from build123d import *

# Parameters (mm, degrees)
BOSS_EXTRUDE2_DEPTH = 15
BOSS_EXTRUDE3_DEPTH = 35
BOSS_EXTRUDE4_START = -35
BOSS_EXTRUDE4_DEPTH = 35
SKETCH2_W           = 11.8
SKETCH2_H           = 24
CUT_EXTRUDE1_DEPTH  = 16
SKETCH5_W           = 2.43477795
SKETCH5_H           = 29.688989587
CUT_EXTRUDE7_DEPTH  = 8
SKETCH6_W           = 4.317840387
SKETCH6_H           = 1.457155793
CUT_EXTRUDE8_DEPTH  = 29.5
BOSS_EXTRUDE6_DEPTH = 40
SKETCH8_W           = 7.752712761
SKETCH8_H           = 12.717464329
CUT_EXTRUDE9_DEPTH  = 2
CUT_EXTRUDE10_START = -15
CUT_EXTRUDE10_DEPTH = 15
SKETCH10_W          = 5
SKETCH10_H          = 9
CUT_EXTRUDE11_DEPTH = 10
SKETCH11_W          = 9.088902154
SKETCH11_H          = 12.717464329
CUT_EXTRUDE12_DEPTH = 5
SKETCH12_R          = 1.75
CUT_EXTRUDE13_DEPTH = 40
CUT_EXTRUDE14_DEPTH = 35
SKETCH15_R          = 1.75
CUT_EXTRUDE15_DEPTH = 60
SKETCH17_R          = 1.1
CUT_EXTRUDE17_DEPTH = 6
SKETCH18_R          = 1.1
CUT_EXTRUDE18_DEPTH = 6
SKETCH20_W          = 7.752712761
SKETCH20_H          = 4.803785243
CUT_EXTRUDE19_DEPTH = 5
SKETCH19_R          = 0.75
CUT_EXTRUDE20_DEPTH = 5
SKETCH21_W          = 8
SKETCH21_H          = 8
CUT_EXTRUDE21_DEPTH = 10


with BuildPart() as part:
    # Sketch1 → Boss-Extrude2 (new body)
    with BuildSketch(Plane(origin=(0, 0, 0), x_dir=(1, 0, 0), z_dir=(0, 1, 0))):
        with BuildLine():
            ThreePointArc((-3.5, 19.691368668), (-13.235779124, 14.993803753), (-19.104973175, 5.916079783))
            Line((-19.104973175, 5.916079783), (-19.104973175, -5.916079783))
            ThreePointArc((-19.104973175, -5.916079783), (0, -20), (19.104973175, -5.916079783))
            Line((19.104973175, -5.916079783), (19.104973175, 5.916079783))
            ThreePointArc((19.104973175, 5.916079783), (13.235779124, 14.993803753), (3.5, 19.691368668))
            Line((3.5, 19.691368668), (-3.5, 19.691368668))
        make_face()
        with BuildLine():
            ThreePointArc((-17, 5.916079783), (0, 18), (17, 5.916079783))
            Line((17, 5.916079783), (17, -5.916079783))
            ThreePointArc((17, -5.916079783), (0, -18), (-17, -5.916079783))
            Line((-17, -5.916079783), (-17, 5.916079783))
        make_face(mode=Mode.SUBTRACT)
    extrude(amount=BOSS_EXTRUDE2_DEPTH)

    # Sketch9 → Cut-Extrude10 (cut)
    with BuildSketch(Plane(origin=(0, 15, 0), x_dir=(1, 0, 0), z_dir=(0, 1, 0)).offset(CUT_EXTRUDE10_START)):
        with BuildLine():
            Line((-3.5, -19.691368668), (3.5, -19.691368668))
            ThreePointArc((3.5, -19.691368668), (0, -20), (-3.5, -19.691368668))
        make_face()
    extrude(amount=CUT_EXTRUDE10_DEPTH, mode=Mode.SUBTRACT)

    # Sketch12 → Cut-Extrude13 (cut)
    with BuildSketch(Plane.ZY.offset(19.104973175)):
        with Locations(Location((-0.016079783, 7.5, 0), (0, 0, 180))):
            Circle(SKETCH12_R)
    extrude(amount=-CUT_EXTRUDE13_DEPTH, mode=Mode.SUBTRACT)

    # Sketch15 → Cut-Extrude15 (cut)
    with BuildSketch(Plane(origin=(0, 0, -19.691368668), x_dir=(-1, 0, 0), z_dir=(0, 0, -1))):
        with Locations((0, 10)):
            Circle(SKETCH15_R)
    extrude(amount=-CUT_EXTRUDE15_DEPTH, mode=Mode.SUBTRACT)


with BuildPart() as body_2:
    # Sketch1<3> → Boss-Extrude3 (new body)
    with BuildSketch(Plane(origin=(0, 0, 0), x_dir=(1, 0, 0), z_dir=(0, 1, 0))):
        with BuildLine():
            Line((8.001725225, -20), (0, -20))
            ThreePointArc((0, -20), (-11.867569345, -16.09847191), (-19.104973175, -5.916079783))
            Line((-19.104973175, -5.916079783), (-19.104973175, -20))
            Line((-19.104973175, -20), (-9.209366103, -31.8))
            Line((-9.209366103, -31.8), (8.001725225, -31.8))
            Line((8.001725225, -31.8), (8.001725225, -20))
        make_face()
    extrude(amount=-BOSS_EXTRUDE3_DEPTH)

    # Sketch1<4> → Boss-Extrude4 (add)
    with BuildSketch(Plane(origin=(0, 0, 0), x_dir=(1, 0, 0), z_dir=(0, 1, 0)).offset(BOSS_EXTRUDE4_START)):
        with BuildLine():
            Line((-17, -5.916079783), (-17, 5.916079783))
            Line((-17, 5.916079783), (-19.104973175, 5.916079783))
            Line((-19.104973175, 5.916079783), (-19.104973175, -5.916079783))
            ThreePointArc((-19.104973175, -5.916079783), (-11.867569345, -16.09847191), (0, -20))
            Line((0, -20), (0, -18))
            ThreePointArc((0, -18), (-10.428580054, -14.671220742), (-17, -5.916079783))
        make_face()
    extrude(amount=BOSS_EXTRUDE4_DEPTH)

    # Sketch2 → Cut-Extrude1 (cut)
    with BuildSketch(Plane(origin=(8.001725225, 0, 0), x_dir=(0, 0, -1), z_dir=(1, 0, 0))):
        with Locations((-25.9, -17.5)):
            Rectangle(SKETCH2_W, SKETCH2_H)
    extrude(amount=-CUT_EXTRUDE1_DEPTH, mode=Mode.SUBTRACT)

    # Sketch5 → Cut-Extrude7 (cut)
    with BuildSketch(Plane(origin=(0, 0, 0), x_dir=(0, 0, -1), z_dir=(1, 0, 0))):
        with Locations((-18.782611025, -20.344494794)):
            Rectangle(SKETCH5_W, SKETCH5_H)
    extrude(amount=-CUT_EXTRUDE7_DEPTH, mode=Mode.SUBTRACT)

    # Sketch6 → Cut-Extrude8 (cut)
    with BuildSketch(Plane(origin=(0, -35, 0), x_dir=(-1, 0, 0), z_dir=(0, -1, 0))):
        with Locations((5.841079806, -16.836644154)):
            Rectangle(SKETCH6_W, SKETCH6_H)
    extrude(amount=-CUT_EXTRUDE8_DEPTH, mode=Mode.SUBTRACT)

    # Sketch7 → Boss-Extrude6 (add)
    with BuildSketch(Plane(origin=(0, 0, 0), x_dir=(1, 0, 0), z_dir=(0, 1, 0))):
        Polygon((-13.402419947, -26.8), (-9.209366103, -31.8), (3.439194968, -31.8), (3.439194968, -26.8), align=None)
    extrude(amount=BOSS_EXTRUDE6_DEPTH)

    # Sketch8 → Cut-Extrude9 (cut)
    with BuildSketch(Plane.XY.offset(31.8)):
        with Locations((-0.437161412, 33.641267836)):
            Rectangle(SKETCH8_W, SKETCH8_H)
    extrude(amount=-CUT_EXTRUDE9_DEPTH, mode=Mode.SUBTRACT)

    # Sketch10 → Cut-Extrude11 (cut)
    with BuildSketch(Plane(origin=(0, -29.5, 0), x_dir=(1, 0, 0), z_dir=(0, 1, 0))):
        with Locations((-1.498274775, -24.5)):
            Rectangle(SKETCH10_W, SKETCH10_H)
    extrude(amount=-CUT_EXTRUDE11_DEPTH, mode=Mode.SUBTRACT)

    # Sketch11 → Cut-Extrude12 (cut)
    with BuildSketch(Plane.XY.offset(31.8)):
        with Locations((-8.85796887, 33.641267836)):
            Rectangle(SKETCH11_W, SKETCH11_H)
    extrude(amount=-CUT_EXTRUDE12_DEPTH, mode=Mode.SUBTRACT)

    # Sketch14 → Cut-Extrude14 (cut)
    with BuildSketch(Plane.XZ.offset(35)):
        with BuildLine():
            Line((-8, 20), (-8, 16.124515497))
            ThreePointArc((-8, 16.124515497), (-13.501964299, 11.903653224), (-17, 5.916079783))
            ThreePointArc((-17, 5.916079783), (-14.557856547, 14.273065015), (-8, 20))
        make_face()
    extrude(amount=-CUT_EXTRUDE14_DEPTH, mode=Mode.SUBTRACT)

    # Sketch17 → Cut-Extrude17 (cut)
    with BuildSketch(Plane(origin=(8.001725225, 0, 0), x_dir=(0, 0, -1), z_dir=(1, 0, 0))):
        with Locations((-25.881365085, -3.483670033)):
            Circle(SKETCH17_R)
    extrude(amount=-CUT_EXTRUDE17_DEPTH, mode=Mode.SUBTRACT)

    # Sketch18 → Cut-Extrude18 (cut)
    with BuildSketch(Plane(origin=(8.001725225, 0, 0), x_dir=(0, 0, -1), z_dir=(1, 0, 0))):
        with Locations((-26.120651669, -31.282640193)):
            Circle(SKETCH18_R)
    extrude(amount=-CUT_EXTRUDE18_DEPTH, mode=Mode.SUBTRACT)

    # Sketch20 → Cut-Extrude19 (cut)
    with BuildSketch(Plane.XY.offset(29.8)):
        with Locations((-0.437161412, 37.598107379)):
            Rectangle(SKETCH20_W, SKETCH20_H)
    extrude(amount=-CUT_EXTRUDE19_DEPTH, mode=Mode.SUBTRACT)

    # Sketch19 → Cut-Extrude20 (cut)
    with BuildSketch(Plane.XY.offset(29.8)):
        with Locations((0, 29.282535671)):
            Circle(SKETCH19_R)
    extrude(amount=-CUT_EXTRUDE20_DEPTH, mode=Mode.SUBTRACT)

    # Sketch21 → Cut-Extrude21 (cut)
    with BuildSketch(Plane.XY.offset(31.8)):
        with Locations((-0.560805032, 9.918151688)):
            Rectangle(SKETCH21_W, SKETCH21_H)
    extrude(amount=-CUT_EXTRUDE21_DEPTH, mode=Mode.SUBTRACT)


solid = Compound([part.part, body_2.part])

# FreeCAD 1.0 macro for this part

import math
import FreeCAD as App
import Part
import Sketcher
from FreeCAD import Vector


def add_polygon(sketch, points):
    """Adds a closed chain of lines whose ends are joined by coincident constraints."""
    first, n = sketch.GeometryCount, len(points)
    for a, b in zip(points, points[1:] + points[:1]):
        sketch.addGeometry(Part.LineSegment(App.Vector(*a, 0), App.Vector(*b, 0)), False)
    for i in range(n):
        sketch.addConstraint(Sketcher.Constraint("Coincident", first + i, 2, first + (i + 1) % n, 1))

doc = App.newDocument("Part")
body = doc.addObject("PartDesign::Body", "Body")

# Sketch on XZ plane
sketch1 = body.newObject("Sketcher::SketchObject", "Sketch")
sketch1.AttachmentSupport = (doc.getObject("XZ_Plane"), [""])
sketch1.MapMode = "FlatFace"
sketch1.addGeometry([
    Part.ArcOfCircle(Part.Circle(Vector(0, 0, 0), Vector(0, 0, 1), 20), math.radians(-162.794246), math.radians(-100.078658)),  # 0
    Part.LineSegment(Vector(-19.104973, -5.91608, 0), Vector(-19.104973, 5.91608, 0)),  # 1
    Part.ArcOfCircle(Part.Circle(Vector(0, 0, 0), Vector(0, 0, 1), 20), math.radians(17.205754), math.radians(162.794246)),  # 2
    Part.LineSegment(Vector(19.104973, 5.91608, 0), Vector(19.104973, -5.91608, 0)),  # 3
    Part.ArcOfCircle(Part.Circle(Vector(0, 0, 0), Vector(0, 0, 1), 20), math.radians(-79.921342), math.radians(-17.205754)),  # 4
    Part.LineSegment(Vector(3.5, -19.691369, 0), Vector(-3.5, -19.691369, 0)),  # 5
    Part.LineSegment(Vector(-17, 5.91608, 0), Vector(-17, -5.91608, 0)),  # 6
    Part.ArcOfCircle(Part.Circle(Vector(0, 0, 0), Vector(0, 0, 1), 18), math.radians(-160.811864), math.radians(-19.188136)),  # 7
    Part.LineSegment(Vector(17, -5.91608, 0), Vector(17, 5.91608, 0)),  # 8
    Part.ArcOfCircle(Part.Circle(Vector(0, 0, 0), Vector(0, 0, 1), 18), math.radians(19.188136), math.radians(160.811864)),  # 9
], False)
sketch1.addConstraint([
    Sketcher.Constraint("Coincident", 0, 1, 1, 1),
    Sketcher.Constraint("Coincident", 1, 2, 2, 2),
    Sketcher.Constraint("Coincident", 2, 1, 3, 1),
    Sketcher.Constraint("Coincident", 3, 2, 4, 2),
    Sketcher.Constraint("Coincident", 4, 1, 5, 1),
    Sketcher.Constraint("Coincident", 5, 2, 0, 2),
    Sketcher.Constraint("Coincident", 6, 2, 7, 1),
    Sketcher.Constraint("Coincident", 7, 2, 8, 1),
    Sketcher.Constraint("Coincident", 8, 2, 9, 1),
    Sketcher.Constraint("Coincident", 9, 2, 6, 1),
    Sketcher.Constraint("Vertical", 1),
    Sketcher.Constraint("Vertical", 3),
    Sketcher.Constraint("Horizontal", 5),
    Sketcher.Constraint("Vertical", 6),
    Sketcher.Constraint("Vertical", 8),
    Sketcher.Constraint("Coincident", 0, 3, -1, 1),
    Sketcher.Constraint("Coincident", 2, 3, -1, 1),
    Sketcher.Constraint("Coincident", 4, 3, -1, 1),
    Sketcher.Constraint("Coincident", 7, 3, -1, 1),
    Sketcher.Constraint("Coincident", 9, 3, -1, 1),
    Sketcher.Constraint("Equal", 0, 2),
    Sketcher.Constraint("Equal", 2, 4),
    Sketcher.Constraint("Equal", 7, 9),
    Sketcher.Constraint("Horizontal", 1, 2, 2, 1),
    Sketcher.Constraint("Horizontal", 3, 2, 6, 2),
    Sketcher.Constraint("Horizontal", 6, 2, 7, 2),
    Sketcher.Constraint("Radius", 0, 20.0),
    Sketcher.Constraint("Radius", 7, 18.0),
    Sketcher.Constraint("DistanceX", 5, 2, 5, 1, 7.0),
    Sketcher.Constraint("DistanceX", 6, 2, -1, 1, 17.0),
])
pad1 = body.newObject("PartDesign::Pad", "Pad")
pad1.Profile = sketch1
pad1.Length = 15
pad1.Reversed = True

# Sketch on XZ plane
sketch2 = body.newObject("Sketcher::SketchObject", "Sketch001")
sketch2.AttachmentSupport = (doc.getObject("XZ_Plane"), [""])
sketch2.MapMode = "FlatFace"
sketch2.addGeometry([
    Part.LineSegment(Vector(3.5, 19.691369, 0), Vector(-3.5, 19.691369, 0)),
    Part.ArcOfCircle(Part.Circle(Vector(0, 0, 0), Vector(0, 0, 1), 20), math.radians(79.921342), math.radians(100.078658)),
], False)
sketch2.addConstraint([
    Sketcher.Constraint("Coincident", 0, 1, 1, 1),
    Sketcher.Constraint("Coincident", 1, 2, 0, 2),
    Sketcher.Constraint("Horizontal", 0),
    Sketcher.Constraint("Coincident", 1, 3, -1, 1),
    Sketcher.Constraint("Radius", 1, 20.0),
    Sketcher.Constraint("DistanceX", 0, 2, 0, 1, 7.0),
])
pocket1 = body.newObject("PartDesign::Pocket", "Pocket")
pocket1.Profile = sketch2
pocket1.Length = 15

# Sketch on YZ plane
sketch3 = body.newObject("Sketcher::SketchObject", "Sketch002")
sketch3.AttachmentSupport = (doc.getObject("YZ_Plane"), [""])
sketch3.MapMode = "FlatFace"
sketch3.AttachmentOffset = App.Placement(Vector(0, 0, -19.104973), App.Rotation())
sketch3.addGeometry(Part.Circle(Vector(7.5, -0.01608, 0), Vector(0, 0, 1), 1.75), False)
sketch3.addConstraint([
    Sketcher.Constraint("Diameter", 0, 3.5),
    Sketcher.Constraint("DistanceX", -1, 1, 0, 3, 7.5),
    Sketcher.Constraint("DistanceY", 0, 3, -1, 1, 0.01608),
])
pocket2 = body.newObject("PartDesign::Pocket", "Pocket001")
pocket2.Profile = sketch3
pocket2.Length = 40
pocket2.Reversed = True

# Sketch on XY plane
sketch4 = body.newObject("Sketcher::SketchObject", "Sketch003")
sketch4.AttachmentSupport = (doc.getObject("XY_Plane"), [""])
sketch4.MapMode = "FlatFace"
sketch4.AttachmentOffset = App.Placement(Vector(0, 0, -19.691369), App.Rotation())
sketch4.addGeometry(Part.Circle(Vector(0, 10, 0), Vector(0, 0, 1), 1.75), False)
sketch4.addConstraint([
    Sketcher.Constraint("PointOnObject", 0, 3, -2),
    Sketcher.Constraint("Diameter", 0, 3.5),
    Sketcher.Constraint("DistanceY", -1, 1, 0, 3, 10.0),
])
pocket3 = body.newObject("PartDesign::Pocket", "Pocket002")
pocket3.Profile = sketch4
pocket3.Length = 60
pocket3.Reversed = True
body2 = doc.addObject("PartDesign::Body", "Body001")

# Sketch on XZ plane
sketch5 = body2.newObject("Sketcher::SketchObject", "Sketch004")
sketch5.AttachmentSupport = (doc.getObject("XZ_Plane001"), [""])
sketch5.MapMode = "FlatFace"
sketch5.addGeometry([
    Part.LineSegment(Vector(8.001725, 20, 0), Vector(0, 20, 0)),  # 0
    Part.ArcOfCircle(Part.Circle(Vector(0, 0, 0), Vector(0, 0, 1), 20), math.radians(90), math.radians(162.794246)),  # 1
    Part.LineSegment(Vector(-19.104973, 5.91608, 0), Vector(-19.104973, 20, 0)),  # 2
    Part.LineSegment(Vector(-19.104973, 20, 0), Vector(-9.209366, 31.8, 0)),  # 3
    Part.LineSegment(Vector(-9.209366, 31.8, 0), Vector(8.001725, 31.8, 0)),  # 4
    Part.LineSegment(Vector(8.001725, 31.8, 0), Vector(8.001725, 20, 0)),  # 5
], False)
sketch5.addConstraint([
    Sketcher.Constraint("Tangent", 0, 2, 1, 1),
    Sketcher.Constraint("Coincident", 1, 2, 2, 1),
    Sketcher.Constraint("Coincident", 2, 2, 3, 1),
    Sketcher.Constraint("Coincident", 3, 2, 4, 1),
    Sketcher.Constraint("Coincident", 4, 2, 5, 1),
    Sketcher.Constraint("Coincident", 5, 2, 0, 1),
    Sketcher.Constraint("Horizontal", 0),
    Sketcher.Constraint("Vertical", 2),
    Sketcher.Constraint("Horizontal", 4),
    Sketcher.Constraint("Vertical", 5),
    Sketcher.Constraint("Coincident", 1, 3, -1, 1),
    Sketcher.Constraint("Horizontal", 0, 2, 2, 2),
    Sketcher.Constraint("Radius", 1, 20.0),
    Sketcher.Constraint("DistanceY", 5, 2, 5, 1, 11.8),
    Sketcher.Constraint("Distance", 3, 15.400099),
    Sketcher.Constraint("DistanceX", 4, 1, 4, 2, 17.211091),
    Sketcher.Constraint("DistanceY", 2, 1, 2, 2, 14.08392),
])
pad2 = body2.newObject("PartDesign::Pad", "Pad001")
pad2.Profile = sketch5
pad2.Length = 35

# Sketch on XZ plane
sketch6 = body2.newObject("Sketcher::SketchObject", "Sketch005")
sketch6.AttachmentSupport = (doc.getObject("XZ_Plane001"), [""])
sketch6.MapMode = "FlatFace"
sketch6.AttachmentOffset = App.Placement(Vector(0, 0, 35), App.Rotation())
sketch6.addGeometry([
    Part.LineSegment(Vector(-17, 5.91608, 0), Vector(-17, -5.91608, 0)),  # 0
    Part.LineSegment(Vector(-17, -5.91608, 0), Vector(-19.104973, -5.91608, 0)),  # 1
    Part.LineSegment(Vector(-19.104973, -5.91608, 0), Vector(-19.104973, 5.91608, 0)),  # 2
    Part.ArcOfCircle(Part.Circle(Vector(0, 0, 0), Vector(0, 0, 1), 20), math.radians(90), math.radians(162.794246)),  # 3
    Part.LineSegment(Vector(0, 20, 0), Vector(0, 18, 0)),  # 4
    Part.ArcOfCircle(Part.Circle(Vector(0, 0, 0), Vector(0, 0, 1), 18), math.radians(90), math.radians(160.811864)),  # 5
], False)
sketch6.addConstraint([
    Sketcher.Constraint("Coincident", 0, 2, 1, 1),
    Sketcher.Constraint("Coincident", 1, 2, 2, 1),
    Sketcher.Constraint("Coincident", 2, 2, 3, 2),
    Sketcher.Constraint("Coincident", 3, 1, 4, 1),
    Sketcher.Constraint("Coincident", 4, 2, 5, 1),
    Sketcher.Constraint("Coincident", 5, 2, 0, 1),
    Sketcher.Constraint("Vertical", 0),
    Sketcher.Constraint("Horizontal", 1),
    Sketcher.Constraint("Vertical", 2),
    Sketcher.Constraint("Vertical", 4),
    Sketcher.Constraint("Coincident", 3, 3, -1, 1),
    Sketcher.Constraint("Coincident", 5, 3, -1, 1),
    Sketcher.Constraint("PointOnObject", 3, 1, -2),
    Sketcher.Constraint("Horizontal", 2, 2, 5, 2),
    Sketcher.Constraint("Radius", 3, 20.0),
    Sketcher.Constraint("Radius", 5, 18.0),
    Sketcher.Constraint("DistanceX", 0, 2, -1, 1, 17.0),
    Sketcher.Constraint("DistanceY", 0, 2, 0, 1, 11.83216),
])
pad3 = body2.newObject("PartDesign::Pad", "Pad002")
pad3.Profile = sketch6
pad3.Length = 35
pad3.Reversed = True

# Sketch on YZ plane
sketch7 = body2.newObject("Sketcher::SketchObject", "Sketch006")
sketch7.AttachmentSupport = (doc.getObject("YZ_Plane001"), [""])
sketch7.MapMode = "FlatFace"
sketch7.AttachmentOffset = App.Placement(Vector(0, 0, 8.001725), App.Rotation())
add_polygon(sketch7, [(-5.5, 31.8), (-29.5, 31.8), (-29.5, 20), (-5.5, 20)])  # lines 0-3
sketch7.addConstraint([
    Sketcher.Constraint("Horizontal", 0),
    Sketcher.Constraint("Vertical", 1),
    Sketcher.Constraint("Horizontal", 2),
    Sketcher.Constraint("Vertical", 3),
    Sketcher.Constraint("DistanceX", 0, 2, 0, 1, 24.0),
    Sketcher.Constraint("DistanceY", 1, 2, 1, 1, 11.8),
    Sketcher.Constraint("DistanceY", -1, 1, 1, 2, 20.0),
    Sketcher.Constraint("DistanceX", 0, 2, -1, 1, 29.5),
])
pocket4 = body2.newObject("PartDesign::Pocket", "Pocket003")
pocket4.Profile = sketch7
pocket4.Length = 16

# Sketch on YZ plane
sketch8 = body2.newObject("Sketcher::SketchObject", "Sketch007")
sketch8.AttachmentSupport = (doc.getObject("YZ_Plane001"), [""])
sketch8.MapMode = "FlatFace"
add_polygon(sketch8, [(-5.5, 20), (-35.18899, 20), (-35.18899, 17.565222), (-5.5, 17.565222)])  # lines 0-3
sketch8.addConstraint([
    Sketcher.Constraint("Horizontal", 0),
    Sketcher.Constraint("Vertical", 1),
    Sketcher.Constraint("Horizontal", 2),
    Sketcher.Constraint("Vertical", 3),
    Sketcher.Constraint("DistanceY", -1, 1, 0, 2, 20.0),
    Sketcher.Constraint("DistanceX", 2, 2, -1, 1, 5.5),
    Sketcher.Constraint("DistanceX", 0, 2, 0, 1, 29.68899),
    Sketcher.Constraint("DistanceY", 1, 2, 1, 1, 2.434778),
])
pocket5 = body2.newObject("PartDesign::Pocket", "Pocket004")
pocket5.Profile = sketch8
pocket5.Length = 8

# Sketch on XZ plane
sketch9 = body2.newObject("Sketcher::SketchObject", "Sketch008")
sketch9.AttachmentSupport = (doc.getObject("XZ_Plane001"), [""])
sketch9.MapMode = "FlatFace"
sketch9.AttachmentOffset = App.Placement(Vector(0, 0, 35), App.Rotation())
add_polygon(sketch9, [(-3.68216, 16.108066), (-3.68216, 17.565222), (-8, 17.565222), (-8, 16.108066)])  # lines 0-3
sketch9.addConstraint([
    Sketcher.Constraint("Vertical", 0),
    Sketcher.Constraint("Horizontal", 1),
    Sketcher.Constraint("Vertical", 2),
    Sketcher.Constraint("Horizontal", 3),
    Sketcher.Constraint("DistanceX", 1, 2, -1, 1, 8.0),
    Sketcher.Constraint("DistanceX", 1, 2, 1, 1, 4.31784),
    Sketcher.Constraint("DistanceY", 0, 1, 0, 2, 1.457156),
    Sketcher.Constraint("DistanceY", -1, 1, 0, 2, 17.565222),
])
pocket6 = body2.newObject("PartDesign::Pocket", "Pocket005")
pocket6.Profile = sketch9
pocket6.Length = 29.5

# Sketch on XZ plane
sketch10 = body2.newObject("Sketcher::SketchObject", "Sketch009")
sketch10.AttachmentSupport = (doc.getObject("XZ_Plane001"), [""])
sketch10.MapMode = "FlatFace"
add_polygon(sketch10, [(-13.40242, 26.8), (-9.209366, 31.8), (3.439195, 31.8), (3.439195, 26.8)])  # lines 0-3
sketch10.addConstraint([
    Sketcher.Constraint("Horizontal", 1),
    Sketcher.Constraint("Vertical", 2),
    Sketcher.Constraint("Horizontal", 3),
    Sketcher.Constraint("DistanceY", 2, 2, 2, 1, 5.0),
    Sketcher.Constraint("DistanceY", -1, 1, 0, 2, 31.8),
    Sketcher.Constraint("DistanceX", 1, 1, 1, 2, 12.648561),
    Sketcher.Constraint("DistanceX", 3, 2, 3, 1, 16.841615),
    Sketcher.Constraint("DistanceX", 3, 2, -1, 1, 13.40242),
])
pad4 = body2.newObject("PartDesign::Pad", "Pad003")
pad4.Profile = sketch10
pad4.Length = 40
pad4.Reversed = True

# Sketch on XY plane
sketch11 = body2.newObject("Sketcher::SketchObject", "Sketch010")
sketch11.AttachmentSupport = (doc.getObject("XY_Plane001"), [""])
sketch11.MapMode = "FlatFace"
sketch11.AttachmentOffset = App.Placement(Vector(0, 0, 31.8), App.Rotation())
add_polygon(sketch11, [(-4.313518, 40), (-4.313518, 27.282536), (3.439195, 27.282536), (3.439195, 40)])  # lines 0-3
sketch11.addConstraint([
    Sketcher.Constraint("Vertical", 0),
    Sketcher.Constraint("Horizontal", 1),
    Sketcher.Constraint("Vertical", 2),
    Sketcher.Constraint("Horizontal", 3),
    Sketcher.Constraint("DistanceY", -1, 1, 2, 2, 40.0),
    Sketcher.Constraint("DistanceX", 1, 1, 1, 2, 7.752713),
    Sketcher.Constraint("DistanceY", 0, 2, 0, 1, 12.717464),
    Sketcher.Constraint("DistanceX", 0, 2, -1, 1, 4.313518),
])
pocket7 = body2.newObject("PartDesign::Pocket", "Pocket006")
pocket7.Profile = sketch11
pocket7.Length = 2

# Sketch on XZ plane
sketch12 = body2.newObject("Sketcher::SketchObject", "Sketch011")
sketch12.AttachmentSupport = (doc.getObject("XZ_Plane001"), [""])
sketch12.MapMode = "FlatFace"
sketch12.AttachmentOffset = App.Placement(Vector(0, 0, 29.5), App.Rotation())
add_polygon(sketch12, [(-3.998275, 20), (-3.998275, 29), (1.001725, 29), (1.001725, 20)])  # lines 0-3
sketch12.addConstraint([
    Sketcher.Constraint("Vertical", 0),
    Sketcher.Constraint("Horizontal", 1),
    Sketcher.Constraint("Vertical", 2),
    Sketcher.Constraint("Horizontal", 3),
    Sketcher.Constraint("DistanceX", 1, 1, 1, 2, 5.0),
    Sketcher.Constraint("DistanceY", 0, 1, 0, 2, 9.0),
    Sketcher.Constraint("DistanceY", -1, 1, 0, 2, 29.0),
    Sketcher.Constraint("DistanceX", 0, 2, -1, 1, 3.998275),
])
pocket8 = body2.newObject("PartDesign::Pocket", "Pocket007")
pocket8.Profile = sketch12
pocket8.Length = 10
pocket8.Reversed = True

# Sketch on XY plane
sketch13 = body2.newObject("Sketcher::SketchObject", "Sketch012")
sketch13.AttachmentSupport = (doc.getObject("XY_Plane001"), [""])
sketch13.MapMode = "FlatFace"
sketch13.AttachmentOffset = App.Placement(Vector(0, 0, 31.8), App.Rotation())
add_polygon(sketch13, [(-13.40242, 40), (-13.40242, 27.282536), (-4.313518, 27.282536), (-4.313518, 40)])  # lines 0-3
sketch13.addConstraint([
    Sketcher.Constraint("Vertical", 0),
    Sketcher.Constraint("Horizontal", 1),
    Sketcher.Constraint("Vertical", 2),
    Sketcher.Constraint("Horizontal", 3),
    Sketcher.Constraint("DistanceY", -1, 1, 2, 2, 40.0),
    Sketcher.Constraint("DistanceX", 1, 1, 1, 2, 9.088902),
    Sketcher.Constraint("DistanceY", 0, 2, 0, 1, 12.717464),
    Sketcher.Constraint("DistanceX", 0, 2, -1, 1, 13.40242),
])
pocket9 = body2.newObject("PartDesign::Pocket", "Pocket008")
pocket9.Profile = sketch13
pocket9.Length = 5

# Sketch on XZ plane
sketch14 = body2.newObject("Sketcher::SketchObject", "Sketch013")
sketch14.AttachmentSupport = (doc.getObject("XZ_Plane001"), [""])
sketch14.MapMode = "FlatFace"
sketch14.AttachmentOffset = App.Placement(Vector(0, 0, 35), App.Rotation())
sketch14.addGeometry([
    Part.LineSegment(Vector(-8, 16.124515, 0), Vector(-8, 20, 0)),
    Part.ArcOfCircle(Part.Circle(Vector(-1.480177, 5.91608, 0), Vector(0, 0, 1), 15.519823), math.radians(114.840678), math.radians(180)),
    Part.ArcOfCircle(Part.Circle(Vector(0, 0, 0), Vector(0, 0, 1), 18), math.radians(116.3878), math.radians(160.811864)),
], False)
sketch14.addConstraint([
    Sketcher.Constraint("Coincident", 0, 2, 1, 1),
    Sketcher.Constraint("Coincident", 1, 2, 2, 2),
    Sketcher.Constraint("Coincident", 2, 1, 0, 1),
    Sketcher.Constraint("Vertical", 0),
    Sketcher.Constraint("Coincident", 2, 3, -1, 1),
    Sketcher.Constraint("Radius", 2, 18.0),
    Sketcher.Constraint("DistanceX", 0, 2, -1, 1, 8.0),
    Sketcher.Constraint("DistanceY", -1, 1, 0, 2, 20.0),
    Sketcher.Constraint("DistanceX", 1, 2, -1, 1, 17.0),
    Sketcher.Constraint("Radius", 1, 15.519823),
])
pocket10 = body2.newObject("PartDesign::Pocket", "Pocket009")
pocket10.Profile = sketch14
pocket10.Length = 35

# Sketch on YZ plane
sketch15 = body2.newObject("Sketcher::SketchObject", "Sketch014")
sketch15.AttachmentSupport = (doc.getObject("YZ_Plane001"), [""])
sketch15.MapMode = "FlatFace"
sketch15.AttachmentOffset = App.Placement(Vector(0, 0, 8.001725), App.Rotation())
sketch15.addGeometry(Part.Circle(Vector(-3.48367, 25.881365, 0), Vector(0, 0, 1), 1.1), False)
sketch15.addConstraint([
    Sketcher.Constraint("Diameter", 0, 2.2),
    Sketcher.Constraint("DistanceX", 0, 3, -1, 1, 3.48367),
    Sketcher.Constraint("DistanceY", -1, 1, 0, 3, 25.881365),
])
pocket11 = body2.newObject("PartDesign::Pocket", "Pocket010")
pocket11.Profile = sketch15
pocket11.Length = 6

# Sketch on YZ plane
sketch16 = body2.newObject("Sketcher::SketchObject", "Sketch015")
sketch16.AttachmentSupport = (doc.getObject("YZ_Plane001"), [""])
sketch16.MapMode = "FlatFace"
sketch16.AttachmentOffset = App.Placement(Vector(0, 0, 8.001725), App.Rotation())
sketch16.addGeometry(Part.Circle(Vector(-31.28264, 26.120652, 0), Vector(0, 0, 1), 1.1), False)
sketch16.addConstraint([
    Sketcher.Constraint("Diameter", 0, 2.2),
    Sketcher.Constraint("DistanceX", 0, 3, -1, 1, 31.28264),
    Sketcher.Constraint("DistanceY", -1, 1, 0, 3, 26.120652),
])
pocket12 = body2.newObject("PartDesign::Pocket", "Pocket011")
pocket12.Profile = sketch16
pocket12.Length = 6

# Sketch on XY plane
sketch17 = body2.newObject("Sketcher::SketchObject", "Sketch016")
sketch17.AttachmentSupport = (doc.getObject("XY_Plane001"), [""])
sketch17.MapMode = "FlatFace"
sketch17.AttachmentOffset = App.Placement(Vector(0, 0, 29.8), App.Rotation())
add_polygon(sketch17, [(-4.313518, 40), (-4.313518, 35.196215), (3.439195, 35.196215), (3.439195, 40)])  # lines 0-3
sketch17.addConstraint([
    Sketcher.Constraint("Vertical", 0),
    Sketcher.Constraint("Horizontal", 1),
    Sketcher.Constraint("Vertical", 2),
    Sketcher.Constraint("Horizontal", 3),
    Sketcher.Constraint("DistanceY", -1, 1, 2, 2, 40.0),
    Sketcher.Constraint("DistanceX", 1, 1, 1, 2, 7.752713),
    Sketcher.Constraint("DistanceY", 0, 2, 0, 1, 4.803785),
    Sketcher.Constraint("DistanceX", 0, 2, -1, 1, 4.313518),
])
pocket13 = body2.newObject("PartDesign::Pocket", "Pocket012")
pocket13.Profile = sketch17
pocket13.Length = 5

# Sketch on XY plane
sketch18 = body2.newObject("Sketcher::SketchObject", "Sketch017")
sketch18.AttachmentSupport = (doc.getObject("XY_Plane001"), [""])
sketch18.MapMode = "FlatFace"
sketch18.AttachmentOffset = App.Placement(Vector(0, 0, 29.8), App.Rotation())
sketch18.addGeometry(Part.Circle(Vector(0, 29.282536, 0), Vector(0, 0, 1), 0.75), False)
sketch18.addConstraint([
    Sketcher.Constraint("PointOnObject", 0, 3, -2),
    Sketcher.Constraint("Diameter", 0, 1.5),
    Sketcher.Constraint("DistanceY", -1, 1, 0, 3, 29.282536),
])
pocket14 = body2.newObject("PartDesign::Pocket", "Pocket013")
pocket14.Profile = sketch18
pocket14.Length = 5

# Sketch on XY plane
sketch19 = body2.newObject("Sketcher::SketchObject", "Sketch018")
sketch19.AttachmentSupport = (doc.getObject("XY_Plane001"), [""])
sketch19.MapMode = "FlatFace"
sketch19.AttachmentOffset = App.Placement(Vector(0, 0, 31.8), App.Rotation())
add_polygon(sketch19, [(-4.560805, 13.918152), (-4.560805, 5.918152), (3.439195, 5.918152), (3.439195, 13.918152)])  # lines 0-3
sketch19.addConstraint([
    Sketcher.Constraint("Vertical", 0),
    Sketcher.Constraint("Horizontal", 1),
    Sketcher.Constraint("Vertical", 2),
    Sketcher.Constraint("Horizontal", 3),
    Sketcher.Constraint("Equal", 3, 0),
    Sketcher.Constraint("DistanceX", 1, 1, 1, 2, 8.0),
    Sketcher.Constraint("DistanceY", -1, 1, 0, 2, 5.918152),
    Sketcher.Constraint("DistanceX", 0, 2, -1, 1, 4.560805),
])
pocket15 = body2.newObject("PartDesign::Pocket", "Pocket014")
pocket15.Profile = sketch19
pocket15.Length = 10

doc.recompute()
